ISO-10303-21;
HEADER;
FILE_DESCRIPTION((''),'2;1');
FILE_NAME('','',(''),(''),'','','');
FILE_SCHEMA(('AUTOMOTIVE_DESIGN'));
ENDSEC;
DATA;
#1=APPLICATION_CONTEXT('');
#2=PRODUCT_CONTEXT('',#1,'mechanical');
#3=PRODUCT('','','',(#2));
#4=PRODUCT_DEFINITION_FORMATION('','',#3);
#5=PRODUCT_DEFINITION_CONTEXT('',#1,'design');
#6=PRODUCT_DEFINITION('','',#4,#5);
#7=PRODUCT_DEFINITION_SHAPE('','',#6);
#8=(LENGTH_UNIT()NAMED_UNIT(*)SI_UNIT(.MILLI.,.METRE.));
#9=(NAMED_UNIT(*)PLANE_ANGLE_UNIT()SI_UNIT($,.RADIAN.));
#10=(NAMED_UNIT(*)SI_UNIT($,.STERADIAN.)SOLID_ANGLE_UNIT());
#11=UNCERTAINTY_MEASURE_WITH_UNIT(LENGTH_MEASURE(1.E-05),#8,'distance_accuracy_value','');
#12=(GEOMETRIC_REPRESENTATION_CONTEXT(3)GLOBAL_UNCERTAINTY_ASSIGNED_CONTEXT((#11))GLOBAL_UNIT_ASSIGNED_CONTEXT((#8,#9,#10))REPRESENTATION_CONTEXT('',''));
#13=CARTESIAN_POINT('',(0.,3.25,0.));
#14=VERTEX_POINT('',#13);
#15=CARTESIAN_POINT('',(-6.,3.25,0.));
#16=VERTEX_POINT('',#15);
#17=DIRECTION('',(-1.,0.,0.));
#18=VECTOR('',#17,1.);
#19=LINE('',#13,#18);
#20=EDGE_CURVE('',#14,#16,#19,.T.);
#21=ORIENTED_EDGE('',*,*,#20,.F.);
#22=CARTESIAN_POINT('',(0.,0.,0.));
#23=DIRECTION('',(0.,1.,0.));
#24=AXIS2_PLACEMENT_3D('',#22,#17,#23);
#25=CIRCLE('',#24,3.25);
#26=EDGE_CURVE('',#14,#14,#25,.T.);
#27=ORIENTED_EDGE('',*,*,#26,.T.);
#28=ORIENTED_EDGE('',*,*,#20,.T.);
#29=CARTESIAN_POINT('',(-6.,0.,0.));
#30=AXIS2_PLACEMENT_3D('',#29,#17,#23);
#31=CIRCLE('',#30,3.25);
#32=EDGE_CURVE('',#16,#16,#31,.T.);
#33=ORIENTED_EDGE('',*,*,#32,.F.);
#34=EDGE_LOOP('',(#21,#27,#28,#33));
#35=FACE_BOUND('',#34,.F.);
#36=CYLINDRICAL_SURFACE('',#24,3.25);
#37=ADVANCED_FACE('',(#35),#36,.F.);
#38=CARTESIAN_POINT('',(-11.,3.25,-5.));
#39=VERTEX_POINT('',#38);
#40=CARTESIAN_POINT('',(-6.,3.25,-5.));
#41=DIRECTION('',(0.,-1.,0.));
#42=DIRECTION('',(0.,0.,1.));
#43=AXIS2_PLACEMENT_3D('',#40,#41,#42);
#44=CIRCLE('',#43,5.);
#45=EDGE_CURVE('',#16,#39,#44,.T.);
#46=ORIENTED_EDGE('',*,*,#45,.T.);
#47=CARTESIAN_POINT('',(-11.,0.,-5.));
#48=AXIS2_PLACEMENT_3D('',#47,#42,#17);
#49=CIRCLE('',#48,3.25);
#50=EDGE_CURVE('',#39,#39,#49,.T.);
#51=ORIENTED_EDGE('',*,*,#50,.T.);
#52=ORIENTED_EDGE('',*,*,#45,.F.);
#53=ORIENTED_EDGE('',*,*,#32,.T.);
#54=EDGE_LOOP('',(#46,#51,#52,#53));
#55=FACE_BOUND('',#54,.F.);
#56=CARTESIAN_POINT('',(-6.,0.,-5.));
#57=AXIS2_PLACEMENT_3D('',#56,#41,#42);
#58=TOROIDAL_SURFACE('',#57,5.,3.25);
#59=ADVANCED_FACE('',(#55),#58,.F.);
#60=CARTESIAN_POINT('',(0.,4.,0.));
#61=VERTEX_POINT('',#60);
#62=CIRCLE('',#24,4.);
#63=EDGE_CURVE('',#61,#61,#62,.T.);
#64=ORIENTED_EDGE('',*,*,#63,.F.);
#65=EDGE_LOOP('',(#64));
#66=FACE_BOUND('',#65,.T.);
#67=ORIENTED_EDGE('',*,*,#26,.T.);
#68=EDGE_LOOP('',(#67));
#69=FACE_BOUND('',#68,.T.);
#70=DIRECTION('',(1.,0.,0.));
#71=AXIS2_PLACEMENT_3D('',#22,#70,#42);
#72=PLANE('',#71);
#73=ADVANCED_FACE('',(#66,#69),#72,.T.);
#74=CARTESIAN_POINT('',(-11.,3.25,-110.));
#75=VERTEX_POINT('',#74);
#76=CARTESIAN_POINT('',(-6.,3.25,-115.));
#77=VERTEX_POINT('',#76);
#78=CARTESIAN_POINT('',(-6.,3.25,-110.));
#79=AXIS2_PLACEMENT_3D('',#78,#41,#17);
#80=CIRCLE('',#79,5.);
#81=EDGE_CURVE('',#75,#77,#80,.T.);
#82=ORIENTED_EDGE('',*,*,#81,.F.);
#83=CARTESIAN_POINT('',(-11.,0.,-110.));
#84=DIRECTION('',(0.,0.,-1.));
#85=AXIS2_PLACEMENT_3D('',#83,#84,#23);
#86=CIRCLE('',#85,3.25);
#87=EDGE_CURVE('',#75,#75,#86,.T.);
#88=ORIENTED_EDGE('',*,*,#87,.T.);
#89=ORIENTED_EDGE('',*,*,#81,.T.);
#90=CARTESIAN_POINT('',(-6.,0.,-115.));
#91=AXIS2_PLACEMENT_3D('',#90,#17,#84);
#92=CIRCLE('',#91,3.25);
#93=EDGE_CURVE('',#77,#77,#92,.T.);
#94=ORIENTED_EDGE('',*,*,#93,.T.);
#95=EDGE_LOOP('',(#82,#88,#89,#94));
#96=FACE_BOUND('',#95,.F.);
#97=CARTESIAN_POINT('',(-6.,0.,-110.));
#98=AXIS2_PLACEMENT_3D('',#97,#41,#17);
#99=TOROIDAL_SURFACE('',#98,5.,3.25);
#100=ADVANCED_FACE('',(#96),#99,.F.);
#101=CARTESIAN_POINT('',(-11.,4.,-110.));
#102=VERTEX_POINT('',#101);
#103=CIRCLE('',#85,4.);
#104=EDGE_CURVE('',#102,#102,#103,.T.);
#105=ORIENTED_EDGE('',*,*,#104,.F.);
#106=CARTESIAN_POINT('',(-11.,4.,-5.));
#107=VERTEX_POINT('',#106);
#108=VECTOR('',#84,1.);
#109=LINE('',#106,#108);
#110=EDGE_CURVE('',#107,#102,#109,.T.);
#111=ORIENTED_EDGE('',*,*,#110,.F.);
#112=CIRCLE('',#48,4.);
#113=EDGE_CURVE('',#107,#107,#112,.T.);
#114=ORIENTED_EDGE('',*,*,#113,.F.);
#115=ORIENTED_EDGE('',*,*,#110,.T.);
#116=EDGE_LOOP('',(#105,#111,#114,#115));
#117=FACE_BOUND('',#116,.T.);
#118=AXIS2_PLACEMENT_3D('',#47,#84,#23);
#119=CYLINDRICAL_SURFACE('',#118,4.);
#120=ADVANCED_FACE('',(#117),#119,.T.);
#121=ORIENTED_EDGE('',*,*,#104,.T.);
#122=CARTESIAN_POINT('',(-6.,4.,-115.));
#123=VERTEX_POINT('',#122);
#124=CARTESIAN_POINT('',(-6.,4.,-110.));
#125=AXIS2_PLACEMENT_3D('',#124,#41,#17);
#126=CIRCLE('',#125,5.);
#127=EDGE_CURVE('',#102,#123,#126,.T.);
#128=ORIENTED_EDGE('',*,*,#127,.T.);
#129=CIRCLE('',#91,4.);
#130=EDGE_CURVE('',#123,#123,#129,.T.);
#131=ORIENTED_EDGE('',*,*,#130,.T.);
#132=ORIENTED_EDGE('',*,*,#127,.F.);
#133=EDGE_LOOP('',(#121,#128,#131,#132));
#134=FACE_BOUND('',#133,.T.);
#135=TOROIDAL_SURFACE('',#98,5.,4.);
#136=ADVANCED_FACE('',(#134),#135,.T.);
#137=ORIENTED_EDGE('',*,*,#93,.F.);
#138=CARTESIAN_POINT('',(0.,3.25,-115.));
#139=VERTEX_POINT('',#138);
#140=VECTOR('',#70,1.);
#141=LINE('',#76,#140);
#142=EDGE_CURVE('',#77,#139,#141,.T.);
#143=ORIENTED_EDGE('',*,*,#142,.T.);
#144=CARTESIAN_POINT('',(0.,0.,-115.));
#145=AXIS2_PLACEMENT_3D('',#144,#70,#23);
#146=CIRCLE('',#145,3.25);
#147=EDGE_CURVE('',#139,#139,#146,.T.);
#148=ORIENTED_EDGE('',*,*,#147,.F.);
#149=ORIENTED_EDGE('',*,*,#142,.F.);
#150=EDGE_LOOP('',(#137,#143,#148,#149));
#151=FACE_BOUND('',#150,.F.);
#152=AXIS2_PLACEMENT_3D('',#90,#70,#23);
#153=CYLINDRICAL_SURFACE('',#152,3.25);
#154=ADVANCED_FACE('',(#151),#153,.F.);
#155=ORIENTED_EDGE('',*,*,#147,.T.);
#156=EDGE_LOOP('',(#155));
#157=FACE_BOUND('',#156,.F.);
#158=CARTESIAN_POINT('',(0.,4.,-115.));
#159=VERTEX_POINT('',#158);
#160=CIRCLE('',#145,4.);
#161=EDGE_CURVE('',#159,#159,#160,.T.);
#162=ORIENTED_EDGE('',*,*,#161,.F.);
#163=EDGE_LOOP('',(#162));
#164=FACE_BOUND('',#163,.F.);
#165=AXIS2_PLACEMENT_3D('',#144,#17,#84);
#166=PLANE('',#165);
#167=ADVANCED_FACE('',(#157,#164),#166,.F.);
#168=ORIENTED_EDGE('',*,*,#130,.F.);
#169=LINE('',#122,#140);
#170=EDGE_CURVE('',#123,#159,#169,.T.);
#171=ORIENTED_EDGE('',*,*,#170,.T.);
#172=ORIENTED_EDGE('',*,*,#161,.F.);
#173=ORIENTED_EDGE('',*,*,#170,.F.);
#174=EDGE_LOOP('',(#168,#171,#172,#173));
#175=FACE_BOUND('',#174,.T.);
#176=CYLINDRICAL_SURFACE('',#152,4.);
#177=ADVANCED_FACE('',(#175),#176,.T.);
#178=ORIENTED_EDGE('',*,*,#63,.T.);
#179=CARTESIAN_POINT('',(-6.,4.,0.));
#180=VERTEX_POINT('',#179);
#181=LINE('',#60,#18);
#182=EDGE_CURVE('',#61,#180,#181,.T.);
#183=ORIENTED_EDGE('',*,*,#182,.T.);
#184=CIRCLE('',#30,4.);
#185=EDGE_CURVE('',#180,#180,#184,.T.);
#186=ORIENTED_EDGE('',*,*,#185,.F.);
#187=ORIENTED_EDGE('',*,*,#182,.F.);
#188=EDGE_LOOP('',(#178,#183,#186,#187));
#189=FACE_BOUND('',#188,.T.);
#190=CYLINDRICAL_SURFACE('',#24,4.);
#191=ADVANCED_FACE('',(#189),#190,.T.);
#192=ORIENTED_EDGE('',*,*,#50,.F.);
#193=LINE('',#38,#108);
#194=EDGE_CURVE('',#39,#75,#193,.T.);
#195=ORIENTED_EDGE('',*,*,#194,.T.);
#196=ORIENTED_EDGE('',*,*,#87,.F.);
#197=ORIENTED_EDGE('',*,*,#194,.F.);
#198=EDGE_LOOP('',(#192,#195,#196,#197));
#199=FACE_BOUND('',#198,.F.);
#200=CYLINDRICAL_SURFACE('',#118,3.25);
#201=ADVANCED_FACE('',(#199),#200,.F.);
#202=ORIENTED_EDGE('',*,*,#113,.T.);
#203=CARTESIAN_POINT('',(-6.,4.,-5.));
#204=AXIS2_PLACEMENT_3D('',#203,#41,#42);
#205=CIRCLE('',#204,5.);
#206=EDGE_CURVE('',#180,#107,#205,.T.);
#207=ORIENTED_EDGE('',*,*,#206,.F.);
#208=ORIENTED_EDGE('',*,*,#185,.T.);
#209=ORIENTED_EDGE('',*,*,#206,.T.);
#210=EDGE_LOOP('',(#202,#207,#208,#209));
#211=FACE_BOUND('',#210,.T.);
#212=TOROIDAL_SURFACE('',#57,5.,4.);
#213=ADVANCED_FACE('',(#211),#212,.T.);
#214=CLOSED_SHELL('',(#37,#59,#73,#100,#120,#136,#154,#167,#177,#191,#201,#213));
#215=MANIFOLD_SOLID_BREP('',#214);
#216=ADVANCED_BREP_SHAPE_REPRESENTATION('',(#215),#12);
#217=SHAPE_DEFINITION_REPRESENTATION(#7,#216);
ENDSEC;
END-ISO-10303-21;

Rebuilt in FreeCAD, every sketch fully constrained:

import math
import FreeCAD as App
import Part
import Sketcher
Q = App.Units.Quantity

doc = App.newDocument("Part")
body = doc.addObject("PartDesign::Body", "Body")

# Sketch on YZ plane
sketch1 = doc.addObject("Sketcher::SketchObject", "Sketch")
body.addObject(sketch1)
sketch1.AttachmentSupport = (doc.YZ_Plane, [""])
sketch1.MapMode = "FlatFace"
sketch1.addGeometry([
    Part.Circle(App.Vector(0, 0, 0), App.Vector(0, 0, 1), 4),
    Part.Circle(App.Vector(0, 0, 0), App.Vector(0, 0, 1), 3.2),
], False)
sketch1.addConstraint([
    Sketcher.Constraint("Coincident", 0, 3, -1, 1),
    Sketcher.Constraint("Coincident", 1, 3, -1, 1),
    Sketcher.Constraint("Diameter", 0, Q("8 mm")),
    Sketcher.Constraint("Diameter", 1, Q("6.5 mm")),
])

# Sketch on XZ plane
sketch2 = doc.addObject("Sketcher::SketchObject", "Sketch001")
body.addObject(sketch2)
sketch2.AttachmentSupport = (doc.XZ_Plane, [""])
sketch2.MapMode = "FlatFace"
sketch2.addGeometry([
    Part.LineSegment(App.Vector(0, 0, 0), App.Vector(-6, 0, 0)),  # 0
    Part.ArcOfCircle(Part.Circle(App.Vector(-6, -5, 0), App.Vector(0, 0, 1), 5), math.radians(90), math.radians(180)),  # 1
    Part.LineSegment(App.Vector(-11, -5, 0), App.Vector(-11, -110, 0)),  # 2
    Part.ArcOfCircle(Part.Circle(App.Vector(-6, -110, 0), App.Vector(0, 0, 1), 5), math.radians(180), math.radians(270)),  # 3
    Part.LineSegment(App.Vector(-6, -115, 0), App.Vector(0, -115, 0)),  # 4
], False)
sketch2.addConstraint([
    Sketcher.Constraint("Tangent", 0, 2, 1, 1),
    Sketcher.Constraint("Tangent", 1, 2, 2, 1),
    Sketcher.Constraint("Tangent", 2, 2, 3, 1),
    Sketcher.Constraint("Tangent", 3, 2, 4, 1),
    Sketcher.Constraint("Horizontal", 0),
    Sketcher.Constraint("Vertical", 2),
    Sketcher.Constraint("Horizontal", 4),
    Sketcher.Constraint("Coincident", 0, 1, -1, 1),
    Sketcher.Constraint("Equal", 1, 3),
    Sketcher.Constraint("PointOnObject", 4, 2, -2),
    Sketcher.Constraint("Radius", 1, Q("5 mm")),
    Sketcher.Constraint("DistanceX", 0, 2, 0, 1, Q("6 mm")),
    Sketcher.Constraint("DistanceY", 2, 2, 2, 1, Q("105 mm")),
])
doc.recompute()

additivepipe = doc.addObject("PartDesign::AdditivePipe", "AdditivePipe")
body.addObject(additivepipe)
additivepipe.Profile = sketch1
additivepipe.Spine = (sketch2, ["Edge1", "Edge2", "Edge3", "Edge4", "Edge5"])

doc.recompute()
